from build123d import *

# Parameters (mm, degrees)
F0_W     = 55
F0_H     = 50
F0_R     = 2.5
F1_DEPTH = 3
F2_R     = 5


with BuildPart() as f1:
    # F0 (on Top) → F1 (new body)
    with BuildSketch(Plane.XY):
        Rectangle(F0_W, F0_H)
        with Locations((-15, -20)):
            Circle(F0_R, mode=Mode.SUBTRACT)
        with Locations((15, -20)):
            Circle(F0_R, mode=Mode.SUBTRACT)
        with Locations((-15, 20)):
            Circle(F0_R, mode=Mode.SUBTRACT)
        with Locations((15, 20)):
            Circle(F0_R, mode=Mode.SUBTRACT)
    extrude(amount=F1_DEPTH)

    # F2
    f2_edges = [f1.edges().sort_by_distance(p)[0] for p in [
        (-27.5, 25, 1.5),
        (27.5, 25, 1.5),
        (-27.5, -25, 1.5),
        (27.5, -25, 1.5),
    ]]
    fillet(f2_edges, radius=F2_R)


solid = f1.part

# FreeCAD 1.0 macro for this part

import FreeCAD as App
import Part
import Sketcher

V = App.Vector
Q = App.Units.Quantity


def edges_at(feature, points):
    """Names of the edges that pass closest to the given points."""
    edges = feature.Shape.Edges
    near = lambda p: min(range(len(edges)), key=lambda i: edges[i].distToShape(Part.Vertex(*p))[0])
    return sorted({f"Edge{near(p) + 1}" for p in points})


def add_polygon(sketch, points):
    """Adds a closed chain of lines whose ends are joined by coincident constraints."""
    first, n = sketch.GeometryCount, len(points)
    for a, b in zip(points, points[1:] + points[:1]):
        sketch.addGeometry(Part.LineSegment(App.Vector(*a, 0), App.Vector(*b, 0)), False)
    for i in range(n):
        sketch.addConstraint(Sketcher.Constraint("Coincident", first + i, 2, first + (i + 1) % n, 1))

doc = App.newDocument("Part")
body = doc.addObject("PartDesign::Body", "Body")

# Sketch on XY plane
sketch1 = body.newObject("Sketcher::SketchObject", "Sketch")
sketch1.AttachmentSupport = (doc.getObject("XY_Plane"), [""])
sketch1.MapMode = "FlatFace"
add_polygon(sketch1, [(-27.5, 25), (-27.5, -25), (27.5, -25), (27.5, 25)])  # lines 0-3
sketch1.addGeometry(Part.Circle(V(-15, -20, 0), V(0, 0, 1), 2.5), False)  # 4
sketch1.addGeometry(Part.Circle(V(15, -20, 0), V(0, 0, 1), 2.5), False)  # 5
sketch1.addGeometry(Part.Circle(V(-15, 20, 0), V(0, 0, 1), 2.5), False)  # 6
sketch1.addGeometry(Part.Circle(V(15, 20, 0), V(0, 0, 1), 2.5), False)  # 7
sketch1.addConstraint([
    Sketcher.Constraint("Vertical", 0),
    Sketcher.Constraint("Horizontal", 1),
    Sketcher.Constraint("Vertical", 2),
    Sketcher.Constraint("Horizontal", 3),
    Sketcher.Constraint("Equal", 4, 5),
    Sketcher.Constraint("Equal", 5, 6),
    Sketcher.Constraint("Equal", 6, 7),
    Sketcher.Constraint("Symmetric", 5, 3, 6, 3, -1, 1),
    Sketcher.Constraint("Symmetric", 4, 3, 7, 3, -1, 1),
    Sketcher.Constraint("Symmetric", 0, 2, 2, 2, -1, 1),
    Sketcher.Constraint("Symmetric", 4, 3, 5, 3, -2),
    Sketcher.Constraint("Diameter", 4, Q("5 mm")),
    Sketcher.Constraint("DistanceX", 1, 1, 1, 2, Q("55 mm")),
    Sketcher.Constraint("DistanceY", 0, 2, 0, 1, Q("50 mm")),
    Sketcher.Constraint("DistanceX", 4, 3, -1, 1, Q("15 mm")),
    Sketcher.Constraint("DistanceY", 4, 3, -1, 1, Q("20 mm")),
])
pad1 = body.newObject("PartDesign::Pad", "Pad")
pad1.Profile = sketch1
pad1.Length = 3
doc.recompute()

fillet = body.newObject("PartDesign::Fillet", "Fillet")
fillet.Base = (pad1, edges_at(pad1, [
    (-27.5, 25, 1.5),
    (27.5, 25, 1.5),
    (-27.5, -25, 1.5),
    (27.5, -25, 1.5),
]))
fillet.Radius = 5

doc.recompute()
